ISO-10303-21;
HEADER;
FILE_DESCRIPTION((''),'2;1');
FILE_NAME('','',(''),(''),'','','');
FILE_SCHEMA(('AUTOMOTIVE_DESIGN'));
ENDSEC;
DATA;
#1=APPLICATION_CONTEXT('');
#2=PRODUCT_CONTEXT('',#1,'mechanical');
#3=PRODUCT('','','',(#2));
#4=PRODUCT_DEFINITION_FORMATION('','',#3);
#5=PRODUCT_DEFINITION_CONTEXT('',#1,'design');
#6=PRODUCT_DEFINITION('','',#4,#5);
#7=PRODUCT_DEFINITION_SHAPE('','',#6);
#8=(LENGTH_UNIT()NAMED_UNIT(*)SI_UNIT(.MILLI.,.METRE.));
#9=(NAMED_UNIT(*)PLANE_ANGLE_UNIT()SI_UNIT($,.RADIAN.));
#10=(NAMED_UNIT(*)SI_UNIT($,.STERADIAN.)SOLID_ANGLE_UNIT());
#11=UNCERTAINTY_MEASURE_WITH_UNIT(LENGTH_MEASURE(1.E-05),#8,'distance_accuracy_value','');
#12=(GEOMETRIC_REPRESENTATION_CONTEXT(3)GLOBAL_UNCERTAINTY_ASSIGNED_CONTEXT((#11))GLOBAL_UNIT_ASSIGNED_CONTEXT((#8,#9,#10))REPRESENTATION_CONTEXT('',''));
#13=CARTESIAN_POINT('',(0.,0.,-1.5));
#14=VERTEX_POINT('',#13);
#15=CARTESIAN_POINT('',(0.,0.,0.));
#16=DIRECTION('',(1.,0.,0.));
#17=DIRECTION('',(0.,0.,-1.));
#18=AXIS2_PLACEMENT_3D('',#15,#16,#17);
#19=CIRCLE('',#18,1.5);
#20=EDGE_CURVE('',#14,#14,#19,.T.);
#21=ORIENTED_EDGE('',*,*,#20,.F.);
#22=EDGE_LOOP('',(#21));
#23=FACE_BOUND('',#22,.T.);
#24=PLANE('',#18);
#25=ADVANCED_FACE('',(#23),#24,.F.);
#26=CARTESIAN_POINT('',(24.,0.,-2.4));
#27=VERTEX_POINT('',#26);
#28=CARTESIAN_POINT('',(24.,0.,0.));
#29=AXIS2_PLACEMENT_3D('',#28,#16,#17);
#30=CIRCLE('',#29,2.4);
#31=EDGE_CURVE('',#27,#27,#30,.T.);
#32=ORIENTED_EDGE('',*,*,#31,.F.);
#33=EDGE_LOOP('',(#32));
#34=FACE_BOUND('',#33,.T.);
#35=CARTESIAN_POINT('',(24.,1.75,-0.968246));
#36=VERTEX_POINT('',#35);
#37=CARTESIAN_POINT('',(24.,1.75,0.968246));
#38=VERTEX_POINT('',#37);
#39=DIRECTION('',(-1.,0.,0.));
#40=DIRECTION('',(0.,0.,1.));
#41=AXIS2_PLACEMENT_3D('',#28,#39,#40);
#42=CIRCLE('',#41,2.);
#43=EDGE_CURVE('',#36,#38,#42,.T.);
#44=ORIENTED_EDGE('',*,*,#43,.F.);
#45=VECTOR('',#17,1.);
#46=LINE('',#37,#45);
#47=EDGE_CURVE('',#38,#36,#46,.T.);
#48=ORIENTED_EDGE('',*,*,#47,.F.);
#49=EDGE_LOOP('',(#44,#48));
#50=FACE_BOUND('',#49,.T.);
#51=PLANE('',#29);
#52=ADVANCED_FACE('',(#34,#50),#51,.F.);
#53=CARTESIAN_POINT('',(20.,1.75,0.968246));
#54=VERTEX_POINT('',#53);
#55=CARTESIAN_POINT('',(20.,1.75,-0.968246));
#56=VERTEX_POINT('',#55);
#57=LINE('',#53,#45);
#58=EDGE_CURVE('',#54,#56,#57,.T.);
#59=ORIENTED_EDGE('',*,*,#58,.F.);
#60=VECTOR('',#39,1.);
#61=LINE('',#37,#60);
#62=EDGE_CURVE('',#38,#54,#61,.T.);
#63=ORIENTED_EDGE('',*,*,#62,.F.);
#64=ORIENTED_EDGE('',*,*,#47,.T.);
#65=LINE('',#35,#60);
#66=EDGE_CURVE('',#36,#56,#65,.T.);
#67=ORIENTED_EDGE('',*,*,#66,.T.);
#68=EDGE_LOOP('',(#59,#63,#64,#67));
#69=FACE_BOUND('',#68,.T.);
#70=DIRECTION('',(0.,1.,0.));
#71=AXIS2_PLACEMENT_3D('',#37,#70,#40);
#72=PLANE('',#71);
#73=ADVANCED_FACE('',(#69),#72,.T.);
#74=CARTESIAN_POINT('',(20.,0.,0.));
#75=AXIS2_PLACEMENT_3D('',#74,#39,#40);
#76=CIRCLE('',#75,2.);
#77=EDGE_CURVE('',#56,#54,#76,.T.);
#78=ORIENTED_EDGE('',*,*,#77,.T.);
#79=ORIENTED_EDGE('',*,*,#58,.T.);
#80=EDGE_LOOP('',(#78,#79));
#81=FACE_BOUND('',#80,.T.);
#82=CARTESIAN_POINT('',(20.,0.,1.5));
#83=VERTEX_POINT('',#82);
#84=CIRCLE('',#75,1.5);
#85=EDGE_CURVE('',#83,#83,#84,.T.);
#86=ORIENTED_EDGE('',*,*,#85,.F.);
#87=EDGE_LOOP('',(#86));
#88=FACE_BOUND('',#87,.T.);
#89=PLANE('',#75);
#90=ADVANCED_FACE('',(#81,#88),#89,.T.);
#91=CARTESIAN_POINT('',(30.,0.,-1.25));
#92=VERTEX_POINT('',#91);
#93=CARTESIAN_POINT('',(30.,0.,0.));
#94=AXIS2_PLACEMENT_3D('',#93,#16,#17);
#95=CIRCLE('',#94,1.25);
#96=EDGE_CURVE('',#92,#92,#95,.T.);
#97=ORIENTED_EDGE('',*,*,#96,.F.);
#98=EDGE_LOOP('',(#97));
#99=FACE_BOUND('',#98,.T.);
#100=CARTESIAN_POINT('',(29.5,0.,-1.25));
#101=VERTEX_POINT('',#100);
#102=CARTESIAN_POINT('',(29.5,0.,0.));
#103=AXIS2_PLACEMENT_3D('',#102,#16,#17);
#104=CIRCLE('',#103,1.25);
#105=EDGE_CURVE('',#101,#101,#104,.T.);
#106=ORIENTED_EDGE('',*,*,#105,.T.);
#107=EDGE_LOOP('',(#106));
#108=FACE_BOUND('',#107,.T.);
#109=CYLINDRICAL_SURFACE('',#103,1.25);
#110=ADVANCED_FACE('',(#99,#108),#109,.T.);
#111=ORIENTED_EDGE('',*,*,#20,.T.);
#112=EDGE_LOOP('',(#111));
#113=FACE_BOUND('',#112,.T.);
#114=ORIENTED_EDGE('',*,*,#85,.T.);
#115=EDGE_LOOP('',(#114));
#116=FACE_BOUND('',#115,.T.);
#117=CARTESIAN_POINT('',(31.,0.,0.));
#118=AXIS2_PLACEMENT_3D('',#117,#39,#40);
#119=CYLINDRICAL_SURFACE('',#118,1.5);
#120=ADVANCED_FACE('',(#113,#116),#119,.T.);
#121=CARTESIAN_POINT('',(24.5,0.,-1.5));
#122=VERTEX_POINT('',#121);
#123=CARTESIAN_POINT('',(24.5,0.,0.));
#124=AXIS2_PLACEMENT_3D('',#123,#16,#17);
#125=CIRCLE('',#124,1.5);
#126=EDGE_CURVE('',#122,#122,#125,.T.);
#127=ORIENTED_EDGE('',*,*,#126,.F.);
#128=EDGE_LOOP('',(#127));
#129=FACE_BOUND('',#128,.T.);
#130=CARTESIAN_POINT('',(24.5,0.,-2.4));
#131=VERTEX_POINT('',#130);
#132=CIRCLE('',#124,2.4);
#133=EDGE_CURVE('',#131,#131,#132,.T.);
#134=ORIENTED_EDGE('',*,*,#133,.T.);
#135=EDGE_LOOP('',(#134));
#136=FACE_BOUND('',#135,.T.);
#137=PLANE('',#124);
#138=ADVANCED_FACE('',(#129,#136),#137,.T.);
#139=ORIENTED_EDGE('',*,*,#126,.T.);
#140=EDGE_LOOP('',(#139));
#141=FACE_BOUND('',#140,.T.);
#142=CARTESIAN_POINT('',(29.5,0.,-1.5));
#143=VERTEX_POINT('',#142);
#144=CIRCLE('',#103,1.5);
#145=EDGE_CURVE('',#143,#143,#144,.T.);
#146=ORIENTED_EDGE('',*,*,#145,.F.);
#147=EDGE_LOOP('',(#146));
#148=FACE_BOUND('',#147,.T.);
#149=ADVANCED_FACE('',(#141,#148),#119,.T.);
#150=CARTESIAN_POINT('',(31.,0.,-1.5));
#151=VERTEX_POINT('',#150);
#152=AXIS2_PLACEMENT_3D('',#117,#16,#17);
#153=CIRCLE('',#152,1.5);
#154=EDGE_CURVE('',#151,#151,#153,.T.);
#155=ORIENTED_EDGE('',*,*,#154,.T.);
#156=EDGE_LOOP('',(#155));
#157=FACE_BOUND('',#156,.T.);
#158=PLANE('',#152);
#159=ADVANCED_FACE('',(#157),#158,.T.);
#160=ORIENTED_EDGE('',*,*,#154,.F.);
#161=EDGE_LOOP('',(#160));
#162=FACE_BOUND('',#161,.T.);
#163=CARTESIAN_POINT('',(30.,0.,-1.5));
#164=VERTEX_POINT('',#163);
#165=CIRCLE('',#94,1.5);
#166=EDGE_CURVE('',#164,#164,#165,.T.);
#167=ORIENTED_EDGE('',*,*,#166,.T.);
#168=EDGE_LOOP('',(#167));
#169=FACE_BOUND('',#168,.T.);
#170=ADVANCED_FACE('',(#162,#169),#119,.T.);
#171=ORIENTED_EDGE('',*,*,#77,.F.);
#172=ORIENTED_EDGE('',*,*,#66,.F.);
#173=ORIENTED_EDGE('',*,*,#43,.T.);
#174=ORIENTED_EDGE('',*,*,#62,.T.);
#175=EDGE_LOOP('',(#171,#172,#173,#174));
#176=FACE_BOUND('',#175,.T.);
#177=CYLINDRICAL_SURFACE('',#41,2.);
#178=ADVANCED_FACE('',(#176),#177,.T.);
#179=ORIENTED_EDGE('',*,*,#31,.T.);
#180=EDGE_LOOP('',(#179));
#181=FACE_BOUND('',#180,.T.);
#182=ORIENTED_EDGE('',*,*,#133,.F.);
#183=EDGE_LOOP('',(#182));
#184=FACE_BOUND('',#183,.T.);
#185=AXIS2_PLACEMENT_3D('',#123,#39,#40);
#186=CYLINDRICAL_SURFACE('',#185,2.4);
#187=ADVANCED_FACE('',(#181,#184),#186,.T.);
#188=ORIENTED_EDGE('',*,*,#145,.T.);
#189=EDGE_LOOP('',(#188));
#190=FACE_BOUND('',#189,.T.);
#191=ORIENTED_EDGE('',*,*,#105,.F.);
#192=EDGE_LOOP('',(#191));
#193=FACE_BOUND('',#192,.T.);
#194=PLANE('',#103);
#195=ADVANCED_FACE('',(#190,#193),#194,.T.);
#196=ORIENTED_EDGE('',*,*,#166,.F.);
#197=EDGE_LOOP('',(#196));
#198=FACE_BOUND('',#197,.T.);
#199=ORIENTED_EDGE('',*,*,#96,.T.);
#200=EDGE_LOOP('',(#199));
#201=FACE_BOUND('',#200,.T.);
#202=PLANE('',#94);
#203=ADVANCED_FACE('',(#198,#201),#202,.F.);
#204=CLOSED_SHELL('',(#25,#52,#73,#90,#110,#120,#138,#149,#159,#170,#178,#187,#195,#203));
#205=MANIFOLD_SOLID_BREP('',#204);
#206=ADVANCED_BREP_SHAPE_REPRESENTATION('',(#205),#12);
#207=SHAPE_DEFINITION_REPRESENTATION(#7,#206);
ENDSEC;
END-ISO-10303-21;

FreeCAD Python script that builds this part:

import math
import FreeCAD as App
import Part
import Sketcher

doc = App.newDocument("Part")
body = doc.addObject("PartDesign::Body", "Body")

sketch1 = body.newObject("Sketcher::SketchObject", "Sketch")
sketch1.AttachmentSupport = (doc.getObject("YZ_Plane"), [""])
sketch1.MapMode = "FlatFace"
sketch1.addGeometry(Part.Circle(App.Vector(0, 0, 0), App.Vector(0, 0, 1), 1.5), False)
sketch1.addConstraint([
    Sketcher.Constraint("Coincident", 0, 3, -1, 1),
    Sketcher.Constraint("Diameter", 0, 3.0),
])
pad1 = body.newObject("PartDesign::Pad", "Pad")
pad1.Profile = sketch1
pad1.Length = 31

sketch2 = body.newObject("Sketcher::SketchObject", "Sketch001")
sketch2.AttachmentSupport = (doc.getObject("YZ_Plane"), [""])
sketch2.MapMode = "FlatFace"
sketch2.AttachmentOffset = App.Placement(App.Vector(0, 0, 20), App.Rotation())
sketch2.addGeometry([
    Part.LineSegment(App.Vector(1.8, 1, 0), App.Vector(1.8, -1, 0)),
    Part.ArcOfCircle(Part.Circle(App.Vector(0, 0, 0), App.Vector(0, 0, 1), 2), math.radians(29), math.radians(331)),
    Part.Circle(App.Vector(0, 0, 0), App.Vector(0, 0, 1), 1.5),
], False)
sketch2.addConstraint([
    Sketcher.Constraint("Coincident", 0, 1, 1, 1),
    Sketcher.Constraint("Coincident", 1, 2, 0, 2),
    Sketcher.Constraint("Vertical", 0),
    Sketcher.Constraint("Coincident", 1, 3, -1, 1),
    Sketcher.Constraint("Coincident", 2, 3, -1, 1),
    Sketcher.Constraint("Diameter", 2, 3.0),
    Sketcher.Constraint("Radius", 1, 2.0),
    Sketcher.Constraint("DistanceX", -1, 1, 0, 1, 1.75),
])
pad2 = body.newObject("PartDesign::Pad", "Pad001")
pad2.Profile = sketch2
pad2.Length = 4

sketch3 = body.newObject("Sketcher::SketchObject", "Sketch002")
sketch3.AttachmentSupport = (doc.getObject("YZ_Plane"), [""])
sketch3.MapMode = "FlatFace"
sketch3.AttachmentOffset = App.Placement(App.Vector(0, 0, 24), App.Rotation())
sketch3.addGeometry([
    Part.Circle(App.Vector(0, 0, 0), App.Vector(0, 0, 1), 2.4),
    Part.Circle(App.Vector(0, 0, 0), App.Vector(0, 0, 1), 1.5),
], False)
sketch3.addConstraint([
    Sketcher.Constraint("Coincident", 0, 3, -1, 1),
    Sketcher.Constraint("Coincident", 1, 3, -1, 1),
    Sketcher.Constraint("Diameter", 1, 3.0),
    Sketcher.Constraint("Diameter", 0, 4.8),
])
pad3 = body.newObject("PartDesign::Pad", "Pad002")
pad3.Profile = sketch3
pad3.Length = 0.5

sketch4 = body.newObject("Sketcher::SketchObject", "Sketch003")
sketch4.AttachmentSupport = (doc.getObject("YZ_Plane"), [""])
sketch4.MapMode = "FlatFace"
sketch4.AttachmentOffset = App.Placement(App.Vector(0, 0, 29.5), App.Rotation())
sketch4.addGeometry([
    Part.Circle(App.Vector(0, 0, 0), App.Vector(0, 0, 1), 1.5),
    Part.Circle(App.Vector(0, 0, 0), App.Vector(0, 0, 1), 1.2),
], False)
sketch4.addConstraint([
    Sketcher.Constraint("Coincident", 0, 3, -1, 1),
    Sketcher.Constraint("Coincident", 1, 3, -1, 1),
    Sketcher.Constraint("Diameter", 0, 3.0),
    Sketcher.Constraint("Diameter", 1, 2.5),
])
pocket1 = body.newObject("PartDesign::Pocket", "Pocket")
pocket1.Profile = sketch4
pocket1.Length = 0.5
pocket1.Reversed = True

doc.recompute()
